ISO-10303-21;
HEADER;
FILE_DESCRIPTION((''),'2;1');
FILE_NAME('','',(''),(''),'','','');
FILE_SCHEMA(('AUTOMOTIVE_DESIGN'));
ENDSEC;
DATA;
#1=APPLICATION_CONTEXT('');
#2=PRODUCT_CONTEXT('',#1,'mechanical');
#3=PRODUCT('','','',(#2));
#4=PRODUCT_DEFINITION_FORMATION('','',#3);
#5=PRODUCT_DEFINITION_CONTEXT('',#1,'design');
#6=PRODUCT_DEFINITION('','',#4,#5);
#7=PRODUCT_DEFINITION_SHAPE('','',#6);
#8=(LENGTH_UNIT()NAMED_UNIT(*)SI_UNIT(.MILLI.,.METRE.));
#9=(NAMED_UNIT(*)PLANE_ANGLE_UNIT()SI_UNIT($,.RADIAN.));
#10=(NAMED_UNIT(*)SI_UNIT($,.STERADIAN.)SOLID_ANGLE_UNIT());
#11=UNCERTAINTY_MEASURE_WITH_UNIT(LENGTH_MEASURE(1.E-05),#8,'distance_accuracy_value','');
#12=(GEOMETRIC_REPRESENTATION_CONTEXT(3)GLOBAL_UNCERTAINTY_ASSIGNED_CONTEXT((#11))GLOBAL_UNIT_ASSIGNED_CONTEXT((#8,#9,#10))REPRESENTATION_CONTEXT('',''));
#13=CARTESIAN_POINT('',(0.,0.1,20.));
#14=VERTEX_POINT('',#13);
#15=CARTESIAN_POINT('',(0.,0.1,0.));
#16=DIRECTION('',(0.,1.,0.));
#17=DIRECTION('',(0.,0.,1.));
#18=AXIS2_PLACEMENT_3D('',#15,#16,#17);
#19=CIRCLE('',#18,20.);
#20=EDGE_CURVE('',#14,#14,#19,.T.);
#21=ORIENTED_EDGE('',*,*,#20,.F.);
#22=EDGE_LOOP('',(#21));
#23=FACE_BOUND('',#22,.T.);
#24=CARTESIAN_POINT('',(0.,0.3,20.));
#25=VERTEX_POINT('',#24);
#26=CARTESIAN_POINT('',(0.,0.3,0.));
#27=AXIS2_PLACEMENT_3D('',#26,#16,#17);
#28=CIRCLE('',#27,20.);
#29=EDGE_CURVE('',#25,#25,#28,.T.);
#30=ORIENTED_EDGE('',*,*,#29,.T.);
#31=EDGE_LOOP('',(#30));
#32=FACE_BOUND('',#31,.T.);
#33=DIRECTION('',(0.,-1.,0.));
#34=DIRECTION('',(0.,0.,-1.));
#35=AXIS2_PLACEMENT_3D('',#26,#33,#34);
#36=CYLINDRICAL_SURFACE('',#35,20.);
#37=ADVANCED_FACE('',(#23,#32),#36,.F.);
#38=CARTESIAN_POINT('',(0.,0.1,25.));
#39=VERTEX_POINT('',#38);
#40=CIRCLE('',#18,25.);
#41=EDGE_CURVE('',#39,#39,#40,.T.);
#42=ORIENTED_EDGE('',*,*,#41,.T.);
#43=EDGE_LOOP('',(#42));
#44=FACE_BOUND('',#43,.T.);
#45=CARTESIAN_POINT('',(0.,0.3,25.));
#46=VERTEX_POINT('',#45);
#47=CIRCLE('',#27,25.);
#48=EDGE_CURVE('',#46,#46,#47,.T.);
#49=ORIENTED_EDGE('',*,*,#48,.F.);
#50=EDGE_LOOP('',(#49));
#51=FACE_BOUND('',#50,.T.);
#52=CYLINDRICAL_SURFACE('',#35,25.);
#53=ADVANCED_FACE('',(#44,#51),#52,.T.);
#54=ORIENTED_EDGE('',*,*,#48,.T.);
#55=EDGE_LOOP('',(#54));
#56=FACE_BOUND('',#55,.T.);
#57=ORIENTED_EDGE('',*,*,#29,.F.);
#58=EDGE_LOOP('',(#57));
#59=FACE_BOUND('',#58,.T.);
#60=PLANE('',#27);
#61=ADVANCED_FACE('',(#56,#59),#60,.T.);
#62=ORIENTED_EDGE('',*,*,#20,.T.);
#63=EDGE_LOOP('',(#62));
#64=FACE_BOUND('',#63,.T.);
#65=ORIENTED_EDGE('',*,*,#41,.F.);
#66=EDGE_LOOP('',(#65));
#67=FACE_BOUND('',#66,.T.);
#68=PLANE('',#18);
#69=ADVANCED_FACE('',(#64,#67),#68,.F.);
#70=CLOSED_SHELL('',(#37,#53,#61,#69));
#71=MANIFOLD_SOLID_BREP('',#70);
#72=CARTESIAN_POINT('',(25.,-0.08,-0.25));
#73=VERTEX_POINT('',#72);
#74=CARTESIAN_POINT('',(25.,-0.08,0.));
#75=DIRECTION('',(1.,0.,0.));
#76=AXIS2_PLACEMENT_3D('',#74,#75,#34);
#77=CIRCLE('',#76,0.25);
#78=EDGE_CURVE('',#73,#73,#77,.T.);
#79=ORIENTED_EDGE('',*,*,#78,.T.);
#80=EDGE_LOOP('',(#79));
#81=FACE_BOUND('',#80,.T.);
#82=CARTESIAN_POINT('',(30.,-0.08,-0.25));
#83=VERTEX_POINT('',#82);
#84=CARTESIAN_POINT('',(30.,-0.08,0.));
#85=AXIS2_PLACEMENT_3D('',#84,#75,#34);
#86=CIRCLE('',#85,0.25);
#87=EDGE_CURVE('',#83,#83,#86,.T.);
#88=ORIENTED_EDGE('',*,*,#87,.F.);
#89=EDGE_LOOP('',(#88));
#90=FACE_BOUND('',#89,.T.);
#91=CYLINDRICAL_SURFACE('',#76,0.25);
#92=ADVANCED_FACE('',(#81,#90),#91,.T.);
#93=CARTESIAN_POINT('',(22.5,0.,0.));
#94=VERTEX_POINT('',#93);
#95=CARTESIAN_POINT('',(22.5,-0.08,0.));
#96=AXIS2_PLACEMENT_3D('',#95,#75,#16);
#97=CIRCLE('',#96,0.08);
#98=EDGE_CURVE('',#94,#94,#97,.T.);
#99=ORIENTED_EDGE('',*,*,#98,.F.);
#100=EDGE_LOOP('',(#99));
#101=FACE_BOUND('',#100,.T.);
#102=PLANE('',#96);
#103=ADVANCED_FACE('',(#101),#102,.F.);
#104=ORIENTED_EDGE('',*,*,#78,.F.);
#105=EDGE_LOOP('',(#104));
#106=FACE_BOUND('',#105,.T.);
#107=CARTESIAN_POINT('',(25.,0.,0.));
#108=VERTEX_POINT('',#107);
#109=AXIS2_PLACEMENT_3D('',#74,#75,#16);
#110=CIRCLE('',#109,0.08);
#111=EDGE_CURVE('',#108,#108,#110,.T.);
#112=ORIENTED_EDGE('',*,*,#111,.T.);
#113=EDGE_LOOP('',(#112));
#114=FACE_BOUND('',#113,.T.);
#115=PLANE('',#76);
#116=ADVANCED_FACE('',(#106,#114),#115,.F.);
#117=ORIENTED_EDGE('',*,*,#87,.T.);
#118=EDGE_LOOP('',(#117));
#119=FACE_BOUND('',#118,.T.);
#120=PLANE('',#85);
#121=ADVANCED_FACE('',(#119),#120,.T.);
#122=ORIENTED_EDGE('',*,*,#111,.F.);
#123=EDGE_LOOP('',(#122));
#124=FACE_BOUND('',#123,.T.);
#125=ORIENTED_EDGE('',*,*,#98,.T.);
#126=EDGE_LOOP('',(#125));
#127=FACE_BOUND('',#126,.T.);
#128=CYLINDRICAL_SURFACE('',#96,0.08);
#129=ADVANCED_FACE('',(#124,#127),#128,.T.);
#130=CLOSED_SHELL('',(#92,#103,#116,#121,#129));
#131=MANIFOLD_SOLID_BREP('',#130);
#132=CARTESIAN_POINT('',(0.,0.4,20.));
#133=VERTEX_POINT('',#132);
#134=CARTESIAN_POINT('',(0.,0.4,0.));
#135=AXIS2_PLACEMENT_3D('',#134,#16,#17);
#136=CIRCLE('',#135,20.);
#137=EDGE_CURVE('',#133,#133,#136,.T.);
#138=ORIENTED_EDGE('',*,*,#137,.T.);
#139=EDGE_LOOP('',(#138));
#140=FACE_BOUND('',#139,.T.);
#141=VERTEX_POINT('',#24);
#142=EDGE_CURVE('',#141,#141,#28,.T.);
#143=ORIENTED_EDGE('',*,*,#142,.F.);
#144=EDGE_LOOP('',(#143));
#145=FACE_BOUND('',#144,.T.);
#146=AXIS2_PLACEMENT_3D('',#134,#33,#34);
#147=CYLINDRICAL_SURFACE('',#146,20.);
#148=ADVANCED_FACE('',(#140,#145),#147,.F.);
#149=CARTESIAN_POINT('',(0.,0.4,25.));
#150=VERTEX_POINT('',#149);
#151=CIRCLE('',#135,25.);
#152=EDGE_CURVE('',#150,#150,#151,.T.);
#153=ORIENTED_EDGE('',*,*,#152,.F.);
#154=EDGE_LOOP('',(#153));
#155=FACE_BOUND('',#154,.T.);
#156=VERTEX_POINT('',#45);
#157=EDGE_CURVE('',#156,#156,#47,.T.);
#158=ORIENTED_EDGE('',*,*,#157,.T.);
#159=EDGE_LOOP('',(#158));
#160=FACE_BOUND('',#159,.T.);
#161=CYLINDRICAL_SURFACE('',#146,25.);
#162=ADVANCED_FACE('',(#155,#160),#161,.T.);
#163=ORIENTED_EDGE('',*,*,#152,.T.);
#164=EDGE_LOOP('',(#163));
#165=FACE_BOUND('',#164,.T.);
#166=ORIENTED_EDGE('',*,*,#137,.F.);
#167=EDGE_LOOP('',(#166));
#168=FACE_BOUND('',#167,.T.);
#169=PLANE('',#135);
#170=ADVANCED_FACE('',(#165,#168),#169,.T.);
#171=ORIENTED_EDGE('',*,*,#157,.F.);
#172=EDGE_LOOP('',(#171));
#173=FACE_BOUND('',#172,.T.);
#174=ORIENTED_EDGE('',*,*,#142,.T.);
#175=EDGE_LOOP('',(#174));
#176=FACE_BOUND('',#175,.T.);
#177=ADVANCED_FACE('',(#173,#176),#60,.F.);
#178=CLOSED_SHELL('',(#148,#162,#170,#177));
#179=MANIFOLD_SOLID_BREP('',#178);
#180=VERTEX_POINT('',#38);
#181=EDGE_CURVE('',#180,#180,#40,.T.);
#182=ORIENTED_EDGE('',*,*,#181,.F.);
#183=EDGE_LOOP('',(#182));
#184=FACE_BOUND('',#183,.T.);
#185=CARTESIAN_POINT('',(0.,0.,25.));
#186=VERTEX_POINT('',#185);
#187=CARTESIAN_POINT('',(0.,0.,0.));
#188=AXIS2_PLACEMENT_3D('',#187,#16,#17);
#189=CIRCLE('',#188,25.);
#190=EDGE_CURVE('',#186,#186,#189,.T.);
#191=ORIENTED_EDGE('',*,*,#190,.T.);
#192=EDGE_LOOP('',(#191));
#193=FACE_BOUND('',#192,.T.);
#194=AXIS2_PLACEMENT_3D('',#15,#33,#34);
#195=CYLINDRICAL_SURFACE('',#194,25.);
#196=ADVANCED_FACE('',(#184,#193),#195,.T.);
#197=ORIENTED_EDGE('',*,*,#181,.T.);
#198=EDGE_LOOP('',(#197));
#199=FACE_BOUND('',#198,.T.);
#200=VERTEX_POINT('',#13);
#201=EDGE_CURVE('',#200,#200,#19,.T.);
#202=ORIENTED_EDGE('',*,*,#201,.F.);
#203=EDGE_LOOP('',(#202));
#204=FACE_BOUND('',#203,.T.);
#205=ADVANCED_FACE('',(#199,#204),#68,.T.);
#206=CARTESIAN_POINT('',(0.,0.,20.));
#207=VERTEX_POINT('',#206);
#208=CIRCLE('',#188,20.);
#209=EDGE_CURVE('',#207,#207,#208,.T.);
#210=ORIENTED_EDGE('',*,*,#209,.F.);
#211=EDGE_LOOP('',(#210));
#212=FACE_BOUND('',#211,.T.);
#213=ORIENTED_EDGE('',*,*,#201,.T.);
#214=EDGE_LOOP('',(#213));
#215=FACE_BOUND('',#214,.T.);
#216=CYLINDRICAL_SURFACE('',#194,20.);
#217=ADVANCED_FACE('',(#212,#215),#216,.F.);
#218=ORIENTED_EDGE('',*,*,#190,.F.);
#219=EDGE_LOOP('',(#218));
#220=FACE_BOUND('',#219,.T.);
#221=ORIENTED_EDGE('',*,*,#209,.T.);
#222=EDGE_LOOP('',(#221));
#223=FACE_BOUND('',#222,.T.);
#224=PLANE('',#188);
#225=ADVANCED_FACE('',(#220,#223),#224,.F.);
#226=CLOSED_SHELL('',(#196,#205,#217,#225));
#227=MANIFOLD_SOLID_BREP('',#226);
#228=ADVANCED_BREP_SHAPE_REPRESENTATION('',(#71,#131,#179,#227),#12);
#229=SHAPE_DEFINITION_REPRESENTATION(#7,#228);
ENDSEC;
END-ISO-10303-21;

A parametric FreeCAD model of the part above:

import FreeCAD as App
import Part
import Sketcher

V = App.Vector
Q = App.Units.Quantity

doc = App.newDocument("Part")
body = doc.addObject("PartDesign::Body", "Body")

# Sketch on XZ plane
sketch1 = doc.addObject("Sketcher::SketchObject", "Sketch")
body.addObject(sketch1)
sketch1.AttachmentSupport = (doc.XZ_Plane, [""])
sketch1.MapMode = "FlatFace"
sketch1.addGeometry(Part.Circle(V(0, 0, 0), V(0, 0, 1), 25), False)
sketch1.addGeometry(Part.Circle(V(0, 0, 0), V(0, 0, 1), 20), False)
sketch1.addConstraint(Sketcher.Constraint("Coincident", 0, 3, -1, 1))
sketch1.addConstraint(Sketcher.Constraint("Coincident", 1, 3, -1, 1))
sketch1.addConstraint(Sketcher.Constraint("Diameter", 0, Q("50 mm")))
sketch1.addConstraint(Sketcher.Constraint("Diameter", 1, Q("40 mm")))
pad1 = doc.addObject("PartDesign::Pad", "Pad")
body.addObject(pad1)
pad1.Profile = sketch1
pad1.Length = 0.1
pad1.Reversed = True
body2 = doc.addObject("PartDesign::Body", "Body001")

# Sketch on YZ plane
sketch2 = doc.addObject("Sketcher::SketchObject", "Sketch001")
body2.addObject(sketch2)
sketch2.AttachmentSupport = (doc.getObject("YZ_Plane001"), [""])
sketch2.MapMode = "FlatFace"
sketch2.AttachmentOffset = App.Placement(V(0, 0, 22.5), App.Rotation())
sketch2.addGeometry(Part.Circle(V(-0.08, 0, 0), V(0, 0, 1), 0.08), False)
sketch2.addConstraint(Sketcher.Constraint("PointOnObject", 0, 3, -1))
sketch2.addConstraint(Sketcher.Constraint("Diameter", 0, Q("0.16 mm")))
sketch2.addConstraint(Sketcher.Constraint("DistanceX", 0, 3, -1, 1, Q("0.08 mm")))

# Sketch on XY plane
sketch3 = doc.addObject("Sketcher::SketchObject", "Sketch002")
body2.addObject(sketch3)
sketch3.AttachmentSupport = (doc.getObject("XY_Plane001"), [""])
sketch3.MapMode = "FlatFace"
sketch3.addGeometry(Part.LineSegment(V(22.5, -0.1, 0), V(25, -0.1, 0)), False)
sketch3.addConstraint(Sketcher.Constraint("Horizontal", 0))
sketch3.addConstraint(Sketcher.Constraint("DistanceX", 0, 1, 0, 2, Q("2.5 mm")))
sketch3.addConstraint(Sketcher.Constraint("DistanceX", -1, 1, 0, 2, Q("25 mm")))
sketch3.addConstraint(Sketcher.Constraint("DistanceY", 0, 1, -1, 1, Q("0.08 mm")))
doc.recompute()

additivepipe = doc.addObject("PartDesign::AdditivePipe", "AdditivePipe")
body2.addObject(additivepipe)
additivepipe.Profile = sketch2
additivepipe.Spine = (sketch3, ["Edge1"])

# Sketch on YZ plane
sketch4 = doc.addObject("Sketcher::SketchObject", "Sketch003")
body2.addObject(sketch4)
sketch4.AttachmentSupport = (doc.getObject("YZ_Plane001"), [""])
sketch4.MapMode = "FlatFace"
sketch4.AttachmentOffset = App.Placement(V(0, 0, 25), App.Rotation())
sketch4.addGeometry(Part.Circle(V(-0.08, 0, 0), V(0, 0, 1), 0.25), False)
sketch4.addConstraint(Sketcher.Constraint("PointOnObject", 0, 3, -1))
sketch4.addConstraint(Sketcher.Constraint("Diameter", 0, Q("0.5 mm")))
sketch4.addConstraint(Sketcher.Constraint("DistanceX", 0, 3, -1, 1, Q("0.08 mm")))

# Sketch on XY plane
sketch5 = doc.addObject("Sketcher::SketchObject", "Sketch004")
body2.addObject(sketch5)
sketch5.AttachmentSupport = (doc.getObject("XY_Plane001"), [""])
sketch5.MapMode = "FlatFace"
sketch5.addGeometry(Part.LineSegment(V(25, 0, 0), V(30, 0, 0)), False)
sketch5.addConstraint(Sketcher.Constraint("Horizontal", 0))
sketch5.addConstraint(Sketcher.Constraint("DistanceX", 0, 1, 0, 2, Q("5 mm")))
sketch5.addConstraint(Sketcher.Constraint("DistanceX", -1, 1, 0, 1, Q("25 mm")))
sketch5.addConstraint(Sketcher.Constraint("DistanceY", 0, 1, -1, 1, Q("0.08 mm")))
doc.recompute()

additivepipe2 = doc.addObject("PartDesign::AdditivePipe", "AdditivePipe001")
body2.addObject(additivepipe2)
additivepipe2.Profile = sketch4
additivepipe2.Spine = (sketch5, ["Edge1"])
body3 = doc.addObject("PartDesign::Body", "Body002")

# Sketch on XZ plane
sketch6 = doc.addObject("Sketcher::SketchObject", "Sketch005")
body3.addObject(sketch6)
sketch6.AttachmentSupport = (doc.getObject("XZ_Plane002"), [""])
sketch6.MapMode = "FlatFace"
sketch6.AttachmentOffset = App.Placement(V(0, 0, -0.1), App.Rotation())
sketch6.addGeometry(Part.Circle(V(0, 0, 0), V(0, 0, 1), 25), False)
sketch6.addGeometry(Part.Circle(V(0, 0, 0), V(0, 0, 1), 20), False)
sketch6.addConstraint(Sketcher.Constraint("Coincident", 0, 3, -1, 1))
sketch6.addConstraint(Sketcher.Constraint("Coincident", 1, 3, -1, 1))
sketch6.addConstraint(Sketcher.Constraint("Diameter", 0, Q("50 mm")))
sketch6.addConstraint(Sketcher.Constraint("Diameter", 1, Q("40 mm")))
pad2 = doc.addObject("PartDesign::Pad", "Pad001")
body3.addObject(pad2)
pad2.Profile = sketch6
pad2.Length = 0.2
pad2.Reversed = True
body4 = doc.addObject("PartDesign::Body", "Body003")

# Sketch on XZ plane
sketch7 = doc.addObject("Sketcher::SketchObject", "Sketch006")
body4.addObject(sketch7)
sketch7.AttachmentSupport = (doc.getObject("XZ_Plane003"), [""])
sketch7.MapMode = "FlatFace"
sketch7.AttachmentOffset = App.Placement(V(0, 0, -0.3), App.Rotation())
sketch7.addGeometry(Part.Circle(V(0, 0, 0), V(0, 0, 1), 25), False)
sketch7.addGeometry(Part.Circle(V(0, 0, 0), V(0, 0, 1), 20), False)
sketch7.addConstraint(Sketcher.Constraint("Coincident", 0, 3, -1, 1))
sketch7.addConstraint(Sketcher.Constraint("Coincident", 1, 3, -1, 1))
sketch7.addConstraint(Sketcher.Constraint("Diameter", 0, Q("50 mm")))
sketch7.addConstraint(Sketcher.Constraint("Diameter", 1, Q("40 mm")))
pad3 = doc.addObject("PartDesign::Pad", "Pad002")
body4.addObject(pad3)
pad3.Profile = sketch7
pad3.Length = 0.1
pad3.Reversed = True

doc.recompute()
